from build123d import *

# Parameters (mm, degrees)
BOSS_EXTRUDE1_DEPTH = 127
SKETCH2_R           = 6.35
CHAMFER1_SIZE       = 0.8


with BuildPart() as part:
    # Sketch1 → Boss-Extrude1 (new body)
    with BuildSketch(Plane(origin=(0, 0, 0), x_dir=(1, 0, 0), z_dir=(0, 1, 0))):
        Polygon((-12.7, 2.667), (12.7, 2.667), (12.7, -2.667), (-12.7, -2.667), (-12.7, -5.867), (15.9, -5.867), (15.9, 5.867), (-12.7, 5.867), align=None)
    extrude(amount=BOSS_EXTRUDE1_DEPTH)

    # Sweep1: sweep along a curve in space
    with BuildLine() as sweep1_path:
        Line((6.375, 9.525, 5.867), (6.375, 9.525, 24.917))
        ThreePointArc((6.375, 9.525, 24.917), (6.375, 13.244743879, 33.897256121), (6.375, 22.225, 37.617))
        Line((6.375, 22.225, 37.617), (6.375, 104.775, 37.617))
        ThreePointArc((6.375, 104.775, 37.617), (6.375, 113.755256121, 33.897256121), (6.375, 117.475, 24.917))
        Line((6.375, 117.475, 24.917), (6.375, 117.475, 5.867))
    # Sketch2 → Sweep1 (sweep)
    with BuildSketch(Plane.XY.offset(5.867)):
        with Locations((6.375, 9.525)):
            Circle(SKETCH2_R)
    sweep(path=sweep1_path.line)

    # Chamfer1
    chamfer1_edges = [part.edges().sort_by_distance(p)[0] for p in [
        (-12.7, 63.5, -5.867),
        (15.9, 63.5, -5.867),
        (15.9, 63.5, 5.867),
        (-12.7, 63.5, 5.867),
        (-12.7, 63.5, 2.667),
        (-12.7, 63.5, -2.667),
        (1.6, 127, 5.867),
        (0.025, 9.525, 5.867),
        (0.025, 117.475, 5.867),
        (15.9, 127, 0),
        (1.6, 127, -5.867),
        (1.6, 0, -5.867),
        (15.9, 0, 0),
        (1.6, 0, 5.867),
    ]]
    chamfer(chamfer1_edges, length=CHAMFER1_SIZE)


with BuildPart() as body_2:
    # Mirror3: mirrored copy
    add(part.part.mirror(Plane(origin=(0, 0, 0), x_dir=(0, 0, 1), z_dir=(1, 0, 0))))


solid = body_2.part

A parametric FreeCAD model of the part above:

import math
import FreeCAD as App
import Part
import Sketcher
Q = App.Units.Quantity


def edges_at(feature, points):
    """Names of the edges that pass closest to the given points."""
    edges = feature.Shape.Edges
    near = lambda p: min(range(len(edges)), key=lambda i: edges[i].distToShape(Part.Vertex(*p))[0])
    return sorted({f"Edge{near(p) + 1}" for p in points})


def add_polygon(sketch, points):
    """Adds a closed chain of lines whose ends are joined by coincident constraints."""
    first, n = sketch.GeometryCount, len(points)
    for a, b in zip(points, points[1:] + points[:1]):
        sketch.addGeometry(Part.LineSegment(App.Vector(*a, 0), App.Vector(*b, 0)), False)
    for i in range(n):
        sketch.addConstraint(Sketcher.Constraint("Coincident", first + i, 2, first + (i + 1) % n, 1))

doc = App.newDocument("Part")
body = doc.addObject("PartDesign::Body", "Body")

# Sketch on XZ plane
sketch1 = body.newObject("Sketcher::SketchObject", "Sketch")
sketch1.AttachmentSupport = (doc.getObject("XZ_Plane"), [""])
sketch1.MapMode = "FlatFace"
add_polygon(sketch1, [(-12.7, -2.7), (12.7, -2.7), (12.7, 2.7), (-12.7, 2.7), (-12.7, 5.9), (15.9, 5.9), (15.9, -5.9), (-12.7, -5.9)])  # lines 0-7
sketch1.addConstraint([
    Sketcher.Constraint("Horizontal", 0),
    Sketcher.Constraint("Vertical", 1),
    Sketcher.Constraint("Horizontal", 2),
    Sketcher.Constraint("Vertical", 3),
    Sketcher.Constraint("Horizontal", 4),
    Sketcher.Constraint("Vertical", 5),
    Sketcher.Constraint("Horizontal", 6),
    Sketcher.Constraint("Vertical", 7),
    Sketcher.Constraint("Symmetric", 0, 2, 2, 2, -1, 1),
    Sketcher.Constraint("Symmetric", 3, 2, 6, 2, -1),
    Sketcher.Constraint("DistanceX", 0, 1, 0, 2, Q("1 in")),
    Sketcher.Constraint("DistanceY", 1, 1, 1, 2, Q("0.21 in")),
    Sketcher.Constraint("DistanceX", 4, 1, 4, 2, Q("28.6 mm")),
    Sketcher.Constraint("DistanceY", 3, 1, 3, 2, Q("3.2 mm")),
])
pad1 = body.newObject("PartDesign::Pad", "Pad")
pad1.Profile = sketch1
pad1.Length = Q("5 in")
pad1.Reversed = True

# Sketch on XY plane
sketch2 = body.newObject("Sketcher::SketchObject", "Sketch001")
sketch2.AttachmentSupport = (doc.getObject("XY_Plane"), [""])
sketch2.MapMode = "FlatFace"
sketch2.AttachmentOffset = App.Placement(App.Vector(0, 0, 5.867), App.Rotation())
sketch2.addGeometry(Part.Circle(App.Vector(6, 10, 0), App.Vector(0, 0, 1), 6), False)
sketch2.addConstraint([
    Sketcher.Constraint("Diameter", 0, Q("0.5 in")),
    Sketcher.Constraint("DistanceY", -1, 1, 0, 3, Q("0.375 in")),
    Sketcher.Constraint("DistanceX", -1, 1, 0, 3, Q("6.375 mm")),
])

# Sketch on YZ plane
sketch3 = body.newObject("Sketcher::SketchObject", "Sketch002")
sketch3.AttachmentSupport = (doc.getObject("YZ_Plane"), [""])
sketch3.MapMode = "FlatFace"
sketch3.AttachmentOffset = App.Placement(App.Vector(0, 0, 6.375), App.Rotation())
sketch3.addGeometry([
    Part.LineSegment(App.Vector(10, 6, 0), App.Vector(10, 25, 0)),  # 0
    Part.ArcOfCircle(Part.Circle(App.Vector(22, 25, 0), App.Vector(0, 0, 1), 13), math.radians(90), math.radians(180)),  # 1
    Part.LineSegment(App.Vector(22, 38, 0), App.Vector(105, 38, 0)),  # 2
    Part.ArcOfCircle(Part.Circle(App.Vector(105, 25, 0), App.Vector(0, 0, 1), 13), math.radians(0), math.radians(90)),  # 3
    Part.LineSegment(App.Vector(117, 25, 0), App.Vector(117, 6, 0)),  # 4
], False)
sketch3.addConstraint([
    Sketcher.Constraint("Tangent", 0, 2, 1, 2),
    Sketcher.Constraint("Tangent", 1, 1, 2, 1),
    Sketcher.Constraint("Tangent", 2, 2, 3, 2),
    Sketcher.Constraint("Tangent", 3, 1, 4, 1),
    Sketcher.Constraint("Vertical", 0),
    Sketcher.Constraint("Horizontal", 2),
    Sketcher.Constraint("Vertical", 4),
    Sketcher.Constraint("Equal", 1, 3),
    Sketcher.Constraint("Horizontal", 0, 1, 4, 2),
    Sketcher.Constraint("Radius", 1, Q("0.5 in")),
    Sketcher.Constraint("DistanceX", 2, 1, 2, 2, Q("3.25 in")),
    Sketcher.Constraint("DistanceY", 0, 1, 0, 2, Q("0.75 in")),
    Sketcher.Constraint("DistanceX", -1, 1, 1, 3, Q("0.875 in")),
    Sketcher.Constraint("DistanceY", -1, 1, 1, 3, Q("24.917 mm")),
])
doc.recompute()

additivepipe = body.newObject("PartDesign::AdditivePipe", "AdditivePipe")
additivepipe.Profile = sketch2
additivepipe.Spine = (sketch3, ["Edge1", "Edge2", "Edge3", "Edge4", "Edge5"])
doc.recompute()

chamfer = body.newObject("PartDesign::Chamfer", "Chamfer")
chamfer.Base = (additivepipe, edges_at(additivepipe, [
    (-12.7, 63.5, -5.867),
    (15.9, 63.5, -5.867),
    (15.9, 63.5, 5.867),
    (-12.7, 63.5, 5.867),
    (-12.7, 63.5, 2.667),
    (-12.7, 63.5, -2.667),
    (1.6, 127, 5.867),
    (0.025, 9.525, 5.867),
    (0.025, 117.475, 5.867),
    (15.9, 127, 0),
    (1.6, 127, -5.867),
    (1.6, 0, -5.867),
    (15.9, 0, 0),
    (1.6, 0, 5.867),
]))
chamfer.Size = 0.8
body2 = doc.addObject("PartDesign::Body", "Body001")
doc.recompute()

mirroring = doc.addObject("Part::Mirroring", "Mirroring")
mirroring.Source = body
mirroring.Base = App.Vector(0, 0, 0)
mirroring.Normal = App.Vector(1, 0, 0)
body2.BaseFeature = mirroring
doc.recompute()
body.Visibility = False
mirroring.Visibility = False

doc.recompute()
